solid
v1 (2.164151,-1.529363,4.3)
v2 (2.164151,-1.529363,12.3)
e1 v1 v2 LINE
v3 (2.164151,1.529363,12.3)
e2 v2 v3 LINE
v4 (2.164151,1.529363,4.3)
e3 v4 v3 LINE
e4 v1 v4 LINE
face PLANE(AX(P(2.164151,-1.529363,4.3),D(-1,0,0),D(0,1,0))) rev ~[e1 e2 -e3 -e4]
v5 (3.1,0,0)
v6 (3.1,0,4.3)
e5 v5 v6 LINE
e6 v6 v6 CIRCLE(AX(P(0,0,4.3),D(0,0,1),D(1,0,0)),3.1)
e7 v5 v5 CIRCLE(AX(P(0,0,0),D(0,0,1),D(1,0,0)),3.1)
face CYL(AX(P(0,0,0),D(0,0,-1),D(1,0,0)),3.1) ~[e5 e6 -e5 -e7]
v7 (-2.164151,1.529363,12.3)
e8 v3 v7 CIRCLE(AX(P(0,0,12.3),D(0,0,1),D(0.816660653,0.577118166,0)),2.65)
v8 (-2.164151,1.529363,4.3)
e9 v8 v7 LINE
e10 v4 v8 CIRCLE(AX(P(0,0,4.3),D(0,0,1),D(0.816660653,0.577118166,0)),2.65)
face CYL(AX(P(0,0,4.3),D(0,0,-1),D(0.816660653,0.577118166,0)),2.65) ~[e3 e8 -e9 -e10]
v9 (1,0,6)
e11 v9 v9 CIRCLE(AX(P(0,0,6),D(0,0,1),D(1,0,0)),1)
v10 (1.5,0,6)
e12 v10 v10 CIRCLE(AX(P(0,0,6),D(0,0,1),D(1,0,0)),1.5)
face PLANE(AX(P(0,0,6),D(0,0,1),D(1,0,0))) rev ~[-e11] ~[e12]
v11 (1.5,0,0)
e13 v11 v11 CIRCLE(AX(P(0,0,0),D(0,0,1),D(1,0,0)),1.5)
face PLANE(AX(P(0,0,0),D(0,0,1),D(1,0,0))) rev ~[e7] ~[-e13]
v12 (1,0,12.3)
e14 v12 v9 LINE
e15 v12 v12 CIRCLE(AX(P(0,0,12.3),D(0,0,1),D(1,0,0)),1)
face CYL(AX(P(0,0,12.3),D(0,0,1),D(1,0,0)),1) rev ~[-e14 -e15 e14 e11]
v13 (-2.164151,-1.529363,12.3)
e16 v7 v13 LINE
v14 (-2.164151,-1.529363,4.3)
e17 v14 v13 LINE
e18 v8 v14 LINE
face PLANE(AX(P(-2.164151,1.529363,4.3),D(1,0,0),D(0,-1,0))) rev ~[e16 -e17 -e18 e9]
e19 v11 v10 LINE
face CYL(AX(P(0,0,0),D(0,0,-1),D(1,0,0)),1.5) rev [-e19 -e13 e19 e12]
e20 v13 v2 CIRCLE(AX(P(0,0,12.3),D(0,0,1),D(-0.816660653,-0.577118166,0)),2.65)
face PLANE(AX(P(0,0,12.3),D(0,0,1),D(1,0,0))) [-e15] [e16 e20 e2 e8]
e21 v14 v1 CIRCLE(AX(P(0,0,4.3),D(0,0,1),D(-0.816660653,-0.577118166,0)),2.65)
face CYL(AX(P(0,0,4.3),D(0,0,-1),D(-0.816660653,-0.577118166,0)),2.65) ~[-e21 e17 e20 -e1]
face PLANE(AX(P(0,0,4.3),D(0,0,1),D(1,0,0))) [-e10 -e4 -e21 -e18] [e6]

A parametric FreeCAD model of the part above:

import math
import FreeCAD as App
import Part
import Sketcher

doc = App.newDocument("Part")
params = doc.addObject("Spreadsheet::Sheet", "Params")
for row, (alias, value) in enumerate([
    ("sketch1_diameter", "6.2 mm"),
    ("pad1_length", "4.3 mm"),
    ("sketch2_radius", "2.65 mm"),
    ("pad2_length", "8 mm"),
    ("sketch3_diameter", "2 mm"),
    ("pocket1_length", "8 mm"),
    ("sketch4_diameter", "3 mm"),
    ("pocket2_length", "6 mm"),
], start=1):
    params.set(f"A{row}", alias)
    params.set(f"B{row}", "=" + value)
    params.setAlias(f"B{row}", alias)

body = doc.addObject("PartDesign::Body", "Body")

sketch1 = body.newObject("Sketcher::SketchObject", "Sketch")
sketch1.AttachmentSupport = (doc.getObject("XY_Plane"), [""])
sketch1.MapMode = "FlatFace"
sketch1.addGeometry(Part.Circle(App.Vector(0, 0, 0), App.Vector(0, 0, 1), 3.1), False)
sketch1.addConstraint([
    Sketcher.Constraint("Coincident", 0, 3, -1, 1),
    Sketcher.Constraint("Diameter", 0, 6.2),
])
sketch1.setExpression("Constraints[1]", "Params.sketch1_diameter")
pad1 = body.newObject("PartDesign::Pad", "Pad")
pad1.Profile = sketch1
pad1.setExpression("Length", "Params.pad1_length")

sketch2 = body.newObject("Sketcher::SketchObject", "Sketch001")
sketch2.AttachmentSupport = (doc.getObject("XY_Plane"), [""])
sketch2.MapMode = "FlatFace"
sketch2.AttachmentOffset = App.Placement(App.Vector(0, 0, 4.3), App.Rotation())
sketch2.addGeometry([
    Part.LineSegment(App.Vector(2.2, -1.5, 0), App.Vector(2.2, 1.5, 0)),
    Part.ArcOfCircle(Part.Circle(App.Vector(0, 0, 0), App.Vector(0, 0, 1), 2.7), math.radians(35), math.radians(145)),
    Part.LineSegment(App.Vector(-2.2, 1.5, 0), App.Vector(-2.2, -1.5, 0)),
    Part.ArcOfCircle(Part.Circle(App.Vector(0, 0, 0), App.Vector(0, 0, 1), 2.7), math.radians(-145), math.radians(-35)),
], False)
sketch2.addConstraint([
    Sketcher.Constraint("Coincident", 0, 2, 1, 1),
    Sketcher.Constraint("Coincident", 1, 2, 2, 1),
    Sketcher.Constraint("Coincident", 2, 2, 3, 1),
    Sketcher.Constraint("Coincident", 3, 2, 0, 1),
    Sketcher.Constraint("Vertical", 0),
    Sketcher.Constraint("Vertical", 2),
    Sketcher.Constraint("Coincident", 1, 3, -1, 1),
    Sketcher.Constraint("Coincident", 3, 3, -1, 1),
    Sketcher.Constraint("Equal", 1, 3),
    Sketcher.Constraint("Horizontal", 0, 2, 1, 2),
    Sketcher.Constraint("Radius", 1, 2.65),
    Sketcher.Constraint("DistanceY", 0, 1, 0, 2, 3.058726),
])
sketch2.setExpression("Constraints[10]", "Params.sketch2_radius")
pad2 = body.newObject("PartDesign::Pad", "Pad001")
pad2.Profile = sketch2
pad2.setExpression("Length", "Params.pad2_length")

sketch3 = body.newObject("Sketcher::SketchObject", "Sketch002")
sketch3.AttachmentSupport = (doc.getObject("XY_Plane"), [""])
sketch3.MapMode = "FlatFace"
sketch3.AttachmentOffset = App.Placement(App.Vector(0, 0, 12.3), App.Rotation())
sketch3.addGeometry(Part.Circle(App.Vector(0, 0, 0), App.Vector(0, 0, 1), 1), False)
sketch3.addConstraint([
    Sketcher.Constraint("Coincident", 0, 3, -1, 1),
    Sketcher.Constraint("Diameter", 0, 2.0),
])
sketch3.setExpression("Constraints[1]", "Params.sketch3_diameter")
pocket1 = body.newObject("PartDesign::Pocket", "Pocket")
pocket1.Profile = sketch3
pocket1.setExpression("Length", "Params.pocket1_length")

sketch4 = body.newObject("Sketcher::SketchObject", "Sketch003")
sketch4.AttachmentSupport = (doc.getObject("XY_Plane"), [""])
sketch4.MapMode = "FlatFace"
sketch4.addGeometry(Part.Circle(App.Vector(0, 0, 0), App.Vector(0, 0, 1), 1.5), False)
sketch4.addConstraint([
    Sketcher.Constraint("Coincident", 0, 3, -1, 1),
    Sketcher.Constraint("Diameter", 0, 3.0),
])
sketch4.setExpression("Constraints[1]", "Params.sketch4_diameter")
pocket2 = body.newObject("PartDesign::Pocket", "Pocket001")
pocket2.Profile = sketch4
pocket2.setExpression("Length", "Params.pocket2_length")
pocket2.Reversed = True

doc.recompute()
